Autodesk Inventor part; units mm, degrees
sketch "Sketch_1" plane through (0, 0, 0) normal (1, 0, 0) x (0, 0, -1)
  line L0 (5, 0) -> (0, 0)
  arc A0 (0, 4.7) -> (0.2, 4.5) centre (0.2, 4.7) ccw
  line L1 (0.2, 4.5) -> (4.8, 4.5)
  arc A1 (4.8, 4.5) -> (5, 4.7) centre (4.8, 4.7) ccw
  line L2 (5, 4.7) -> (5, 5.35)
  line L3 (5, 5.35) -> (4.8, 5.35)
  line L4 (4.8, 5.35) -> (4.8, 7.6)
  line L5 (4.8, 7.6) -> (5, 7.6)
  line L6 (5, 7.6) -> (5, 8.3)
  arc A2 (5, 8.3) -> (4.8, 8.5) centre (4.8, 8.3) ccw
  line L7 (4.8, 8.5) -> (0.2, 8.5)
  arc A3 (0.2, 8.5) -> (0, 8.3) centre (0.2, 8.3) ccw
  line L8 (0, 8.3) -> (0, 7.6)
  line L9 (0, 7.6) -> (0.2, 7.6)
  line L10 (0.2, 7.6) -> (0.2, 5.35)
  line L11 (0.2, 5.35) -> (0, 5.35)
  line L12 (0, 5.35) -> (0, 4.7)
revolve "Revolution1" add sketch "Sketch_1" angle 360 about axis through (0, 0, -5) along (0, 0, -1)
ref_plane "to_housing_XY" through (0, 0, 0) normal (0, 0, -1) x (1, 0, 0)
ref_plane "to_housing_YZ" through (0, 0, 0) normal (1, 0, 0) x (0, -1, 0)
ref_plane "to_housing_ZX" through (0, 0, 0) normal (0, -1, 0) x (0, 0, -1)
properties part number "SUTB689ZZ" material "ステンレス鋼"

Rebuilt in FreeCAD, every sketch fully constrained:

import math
import FreeCAD as App
import Part
import Sketcher

V = App.Vector

doc = App.newDocument("Part")
body = doc.addObject("PartDesign::Body", "Body")

sketch1 = doc.addObject("Sketcher::SketchObject", "Sketch")
body.addObject(sketch1)
sketch1.AttachmentSupport = (doc.YZ_Plane, [""])
sketch1.MapMode = "FlatFace"
sketch1.addGeometry([
    Part.LineSegment(V(5.35, 0, 0), V(4.7, 0, 0)),
    Part.ArcOfCircle(Part.Circle(V(4.7, -0.2, 0), V(0, 0, 1), 0.2), math.radians(90), math.radians(180)),
    Part.LineSegment(V(4.5, -0.2, 0), V(4.5, -4.8, 0)),
    Part.ArcOfCircle(Part.Circle(V(4.7, -4.8, 0), V(0, 0, 1), 0.2), math.radians(180), math.radians(270)),
    Part.LineSegment(V(4.7, -5, 0), V(5.35, -5, 0)),
    Part.LineSegment(V(5.35, -5, 0), V(5.35, -4.8, 0)),
    Part.LineSegment(V(5.35, -4.8, 0), V(7.6, -4.8, 0)),
    Part.LineSegment(V(7.6, -4.8, 0), V(7.6, -5, 0)),
    Part.LineSegment(V(7.6, -5, 0), V(8.3, -5, 0)),
    Part.ArcOfCircle(Part.Circle(V(8.3, -4.8, 0), V(0, 0, 1), 0.2), math.radians(-90), math.radians(0)),
    Part.LineSegment(V(8.5, -4.8, 0), V(8.5, -0.2, 0)),
    Part.ArcOfCircle(Part.Circle(V(8.3, -0.2, 0), V(0, 0, 1), 0.2), math.radians(0), math.radians(90)),
    Part.LineSegment(V(8.3, 0, 0), V(7.6, 0, 0)),
    Part.LineSegment(V(7.6, 0, 0), V(7.6, -0.2, 0)),
    Part.LineSegment(V(7.6, -0.2, 0), V(5.35, -0.2, 0)),
    Part.LineSegment(V(5.35, -0.2, 0), V(5.35, 0, 0)),
], False)
sketch1.addConstraint([
    Sketcher.Constraint("Tangent", 0, 2, 1, 1),
    Sketcher.Constraint("Tangent", 1, 2, 2, 1),
    Sketcher.Constraint("Tangent", 2, 2, 3, 1),
    Sketcher.Constraint("Tangent", 3, 2, 4, 1),
    Sketcher.Constraint("Coincident", 4, 2, 5, 1),
    Sketcher.Constraint("Coincident", 5, 2, 6, 1),
    Sketcher.Constraint("Coincident", 6, 2, 7, 1),
    Sketcher.Constraint("Coincident", 7, 2, 8, 1),
    Sketcher.Constraint("Tangent", 8, 2, 9, 1),
    Sketcher.Constraint("Tangent", 9, 2, 10, 1),
    Sketcher.Constraint("Tangent", 10, 2, 11, 1),
    Sketcher.Constraint("Tangent", 11, 2, 12, 1),
    Sketcher.Constraint("Coincident", 12, 2, 13, 1),
    Sketcher.Constraint("Coincident", 13, 2, 14, 1),
    Sketcher.Constraint("Coincident", 14, 2, 15, 1),
    Sketcher.Constraint("Coincident", 15, 2, 0, 1),
    Sketcher.Constraint("Horizontal", 0),
    Sketcher.Constraint("Vertical", 2),
    Sketcher.Constraint("Horizontal", 4),
    Sketcher.Constraint("Vertical", 5),
    Sketcher.Constraint("Horizontal", 6),
    Sketcher.Constraint("Vertical", 7),
    Sketcher.Constraint("Horizontal", 8),
    Sketcher.Constraint("Vertical", 10),
    Sketcher.Constraint("Horizontal", 12),
    Sketcher.Constraint("Vertical", 13),
    Sketcher.Constraint("Horizontal", 14),
    Sketcher.Constraint("Vertical", 15),
    Sketcher.Constraint("Equal", 1, 3),
    Sketcher.Constraint("Equal", 3, 9),
    Sketcher.Constraint("Equal", 9, 11),
    Sketcher.Constraint("PointOnObject", 0, 2, -1),
    Sketcher.Constraint("PointOnObject", 11, 2, -1),
    Sketcher.Constraint("Horizontal", 3, 3, 9, 3),
    Sketcher.Constraint("Horizontal", 2, 2, 5, 2),
    Sketcher.Constraint("Horizontal", 10, 2, 13, 2),
    Sketcher.Constraint("Vertical", 7, 2, 12, 2),
    Sketcher.Constraint("Vertical", 5, 2, 14, 2),
    Sketcher.Constraint("Radius", 1, 0.2),
    Sketcher.Constraint("DistanceX", 8, 1, 8, 2, 0.7),
    Sketcher.Constraint("DistanceY", 2, 2, 2, 1, 4.6),
    Sketcher.Constraint("DistanceX", 1, 2, 10, 2, 4.0),
    Sketcher.Constraint("DistanceX", 0, 2, 0, 1, 0.65),
    Sketcher.Constraint("DistanceX", -1, 1, 1, 3, 4.7),
])
revolution = doc.addObject("PartDesign::Revolution", "Revolution")
body.addObject(revolution)
revolution.Profile = sketch1
revolution.ReferenceAxis = (sketch1, ["V_Axis"])
revolution.Angle = 360

doc.recompute()
